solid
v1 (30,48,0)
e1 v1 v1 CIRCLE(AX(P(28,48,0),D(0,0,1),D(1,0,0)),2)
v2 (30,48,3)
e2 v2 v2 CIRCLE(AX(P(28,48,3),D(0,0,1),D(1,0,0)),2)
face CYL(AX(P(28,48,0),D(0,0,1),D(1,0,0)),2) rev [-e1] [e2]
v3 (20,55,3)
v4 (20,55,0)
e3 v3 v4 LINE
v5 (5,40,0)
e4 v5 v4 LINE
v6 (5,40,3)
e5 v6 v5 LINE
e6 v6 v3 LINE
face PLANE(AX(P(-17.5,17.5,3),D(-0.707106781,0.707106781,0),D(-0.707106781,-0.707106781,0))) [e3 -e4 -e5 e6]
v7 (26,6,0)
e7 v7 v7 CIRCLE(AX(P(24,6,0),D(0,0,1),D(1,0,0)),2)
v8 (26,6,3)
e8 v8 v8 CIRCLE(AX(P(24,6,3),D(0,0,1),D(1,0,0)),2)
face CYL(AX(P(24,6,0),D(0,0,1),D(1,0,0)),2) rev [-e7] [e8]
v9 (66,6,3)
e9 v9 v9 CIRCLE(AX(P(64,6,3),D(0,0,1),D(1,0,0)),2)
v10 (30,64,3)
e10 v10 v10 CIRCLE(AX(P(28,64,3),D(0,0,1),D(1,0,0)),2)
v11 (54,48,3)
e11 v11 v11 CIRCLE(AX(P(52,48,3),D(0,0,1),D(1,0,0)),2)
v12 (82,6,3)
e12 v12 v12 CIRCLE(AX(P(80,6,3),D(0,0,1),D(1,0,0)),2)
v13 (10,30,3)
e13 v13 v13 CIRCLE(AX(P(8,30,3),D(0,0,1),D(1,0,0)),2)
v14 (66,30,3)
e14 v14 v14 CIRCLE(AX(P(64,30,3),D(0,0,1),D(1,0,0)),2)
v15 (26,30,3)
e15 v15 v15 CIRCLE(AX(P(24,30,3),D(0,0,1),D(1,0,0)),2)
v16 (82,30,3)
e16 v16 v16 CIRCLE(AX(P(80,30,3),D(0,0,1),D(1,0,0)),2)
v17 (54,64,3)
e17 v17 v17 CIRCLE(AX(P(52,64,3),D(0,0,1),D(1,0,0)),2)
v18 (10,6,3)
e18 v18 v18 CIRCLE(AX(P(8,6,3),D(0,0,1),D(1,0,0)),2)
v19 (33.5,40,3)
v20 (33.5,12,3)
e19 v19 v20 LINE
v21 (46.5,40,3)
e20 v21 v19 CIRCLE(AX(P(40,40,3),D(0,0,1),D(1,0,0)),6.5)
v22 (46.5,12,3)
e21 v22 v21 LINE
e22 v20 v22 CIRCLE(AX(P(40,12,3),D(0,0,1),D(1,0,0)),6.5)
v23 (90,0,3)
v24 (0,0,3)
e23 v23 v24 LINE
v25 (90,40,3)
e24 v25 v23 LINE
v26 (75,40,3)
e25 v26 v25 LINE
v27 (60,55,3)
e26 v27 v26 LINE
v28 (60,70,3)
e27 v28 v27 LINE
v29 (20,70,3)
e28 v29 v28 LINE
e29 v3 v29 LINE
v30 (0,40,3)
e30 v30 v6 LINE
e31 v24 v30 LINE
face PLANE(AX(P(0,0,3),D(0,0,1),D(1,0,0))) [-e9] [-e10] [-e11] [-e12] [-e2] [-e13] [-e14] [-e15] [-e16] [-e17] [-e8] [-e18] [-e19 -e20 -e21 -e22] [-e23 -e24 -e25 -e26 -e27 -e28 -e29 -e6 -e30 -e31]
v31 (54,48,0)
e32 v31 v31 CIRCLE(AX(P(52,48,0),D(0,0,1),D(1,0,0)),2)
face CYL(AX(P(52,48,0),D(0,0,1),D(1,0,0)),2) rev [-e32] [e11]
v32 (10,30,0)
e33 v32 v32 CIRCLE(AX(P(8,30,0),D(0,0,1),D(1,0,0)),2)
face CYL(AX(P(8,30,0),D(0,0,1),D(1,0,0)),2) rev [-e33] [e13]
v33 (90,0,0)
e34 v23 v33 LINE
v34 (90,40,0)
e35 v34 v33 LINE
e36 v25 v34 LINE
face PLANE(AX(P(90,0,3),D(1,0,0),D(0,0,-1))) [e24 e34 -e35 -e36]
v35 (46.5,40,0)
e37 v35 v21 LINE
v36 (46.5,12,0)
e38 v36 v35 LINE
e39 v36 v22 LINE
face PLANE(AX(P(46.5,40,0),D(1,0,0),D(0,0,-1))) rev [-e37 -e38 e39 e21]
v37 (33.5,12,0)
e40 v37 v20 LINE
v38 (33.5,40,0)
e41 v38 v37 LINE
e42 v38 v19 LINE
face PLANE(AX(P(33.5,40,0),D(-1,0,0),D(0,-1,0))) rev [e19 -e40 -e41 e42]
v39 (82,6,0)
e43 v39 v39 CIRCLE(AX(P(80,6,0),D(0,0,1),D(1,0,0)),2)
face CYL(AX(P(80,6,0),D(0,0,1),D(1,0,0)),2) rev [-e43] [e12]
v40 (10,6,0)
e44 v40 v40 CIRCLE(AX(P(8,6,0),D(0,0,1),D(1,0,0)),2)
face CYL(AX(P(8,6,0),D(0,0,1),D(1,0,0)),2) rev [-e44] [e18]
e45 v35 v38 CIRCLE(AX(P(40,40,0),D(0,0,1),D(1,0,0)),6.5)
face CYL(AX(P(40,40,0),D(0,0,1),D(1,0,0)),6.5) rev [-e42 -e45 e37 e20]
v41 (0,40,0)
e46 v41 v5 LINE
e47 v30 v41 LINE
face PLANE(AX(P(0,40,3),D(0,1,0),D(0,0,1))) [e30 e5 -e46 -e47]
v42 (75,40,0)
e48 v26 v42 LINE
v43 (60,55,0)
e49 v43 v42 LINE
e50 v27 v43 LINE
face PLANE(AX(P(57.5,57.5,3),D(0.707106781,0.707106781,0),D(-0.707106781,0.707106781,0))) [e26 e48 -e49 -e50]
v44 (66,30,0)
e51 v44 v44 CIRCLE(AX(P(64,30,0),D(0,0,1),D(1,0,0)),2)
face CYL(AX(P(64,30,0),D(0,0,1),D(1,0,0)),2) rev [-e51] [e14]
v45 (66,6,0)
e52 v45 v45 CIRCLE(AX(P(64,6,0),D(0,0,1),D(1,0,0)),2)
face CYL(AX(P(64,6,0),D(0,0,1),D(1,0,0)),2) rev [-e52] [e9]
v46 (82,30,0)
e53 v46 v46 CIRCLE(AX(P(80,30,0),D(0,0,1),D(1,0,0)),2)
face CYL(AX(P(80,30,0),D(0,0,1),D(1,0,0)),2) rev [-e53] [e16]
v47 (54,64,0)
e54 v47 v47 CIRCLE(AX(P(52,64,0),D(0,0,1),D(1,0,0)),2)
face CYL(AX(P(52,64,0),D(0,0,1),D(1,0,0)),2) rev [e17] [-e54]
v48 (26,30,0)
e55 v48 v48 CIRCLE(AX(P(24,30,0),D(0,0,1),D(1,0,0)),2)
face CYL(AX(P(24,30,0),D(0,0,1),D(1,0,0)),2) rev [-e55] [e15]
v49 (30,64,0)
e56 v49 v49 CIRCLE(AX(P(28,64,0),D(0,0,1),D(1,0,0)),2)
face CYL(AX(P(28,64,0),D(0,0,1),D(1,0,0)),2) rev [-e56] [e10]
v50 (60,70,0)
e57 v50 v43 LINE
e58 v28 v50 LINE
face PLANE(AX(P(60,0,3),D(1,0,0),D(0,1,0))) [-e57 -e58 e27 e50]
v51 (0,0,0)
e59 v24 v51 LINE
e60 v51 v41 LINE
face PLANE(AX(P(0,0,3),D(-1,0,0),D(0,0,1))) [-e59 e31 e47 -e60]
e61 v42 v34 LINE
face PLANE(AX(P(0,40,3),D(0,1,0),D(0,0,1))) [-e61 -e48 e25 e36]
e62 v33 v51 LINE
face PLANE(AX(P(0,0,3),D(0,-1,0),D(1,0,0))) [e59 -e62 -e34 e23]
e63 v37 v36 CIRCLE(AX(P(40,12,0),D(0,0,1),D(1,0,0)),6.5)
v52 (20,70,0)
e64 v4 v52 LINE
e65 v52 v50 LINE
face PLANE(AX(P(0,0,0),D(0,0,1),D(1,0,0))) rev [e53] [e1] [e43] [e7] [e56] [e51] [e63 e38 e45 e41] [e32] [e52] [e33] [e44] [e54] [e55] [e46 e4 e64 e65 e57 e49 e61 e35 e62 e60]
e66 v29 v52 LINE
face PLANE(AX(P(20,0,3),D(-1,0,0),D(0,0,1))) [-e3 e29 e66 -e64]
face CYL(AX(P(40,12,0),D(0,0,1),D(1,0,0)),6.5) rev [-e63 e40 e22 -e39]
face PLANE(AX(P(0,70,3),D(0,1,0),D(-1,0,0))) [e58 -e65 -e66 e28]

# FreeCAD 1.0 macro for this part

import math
import FreeCAD as App
import Part
import Sketcher
from FreeCAD import Vector

doc = App.newDocument("Part")
params = doc.addObject("Spreadsheet::Sheet", "Params")
for row, (alias, value) in enumerate([
    ("sketch1_width", "90 mm"),
    ("sketch1_width2", "15 mm"),
    ("sketch1_width3", "40 mm"),
    ("sketch1_width4", "5 mm"),
    ("pad1_length", "3 mm"),
    ("sketch2_diameter", "4 mm"),
    ("sketch2_radius", "6.5 mm"),
    ("sketch2_height", "28 mm"),
    ("pocket1_length", "3 mm"),
], start=1):
    params.set(f"A{row}", alias)
    params.set(f"B{row}", "=" + value)
    params.setAlias(f"B{row}", alias)

body = doc.addObject("PartDesign::Body", "Body")

sketch1 = doc.addObject("Sketcher::SketchObject", "Sketch")
body.addObject(sketch1)
sketch1.AttachmentSupport = (doc.XY_Plane, [""])
sketch1.MapMode = "FlatFace"
sketch1.addGeometry(Part.LineSegment(Vector(0, 40, 0), Vector(0, 0, 0)), False)
sketch1.addGeometry(Part.LineSegment(Vector(0, 0, 0), Vector(90, 0, 0)), False)
sketch1.addGeometry(Part.LineSegment(Vector(90, 0, 0), Vector(90, 40, 0)), False)
sketch1.addGeometry(Part.LineSegment(Vector(90, 40, 0), Vector(75, 40, 0)), False)
sketch1.addGeometry(Part.LineSegment(Vector(75, 40, 0), Vector(60, 55, 0)), False)
sketch1.addGeometry(Part.LineSegment(Vector(60, 55, 0), Vector(60, 70, 0)), False)
sketch1.addGeometry(Part.LineSegment(Vector(60, 70, 0), Vector(20, 70, 0)), False)
sketch1.addGeometry(Part.LineSegment(Vector(20, 70, 0), Vector(20, 55, 0)), False)
sketch1.addGeometry(Part.LineSegment(Vector(20, 55, 0), Vector(5, 40, 0)), False)
sketch1.addGeometry(Part.LineSegment(Vector(5, 40, 0), Vector(0, 40, 0)), False)
sketch1.addConstraint(Sketcher.Constraint("Coincident", 0, 2, 1, 1))
sketch1.addConstraint(Sketcher.Constraint("Coincident", 1, 2, 2, 1))
sketch1.addConstraint(Sketcher.Constraint("Coincident", 2, 2, 3, 1))
sketch1.addConstraint(Sketcher.Constraint("Coincident", 3, 2, 4, 1))
sketch1.addConstraint(Sketcher.Constraint("Coincident", 4, 2, 5, 1))
sketch1.addConstraint(Sketcher.Constraint("Coincident", 5, 2, 6, 1))
sketch1.addConstraint(Sketcher.Constraint("Coincident", 6, 2, 7, 1))
sketch1.addConstraint(Sketcher.Constraint("Coincident", 7, 2, 8, 1))
sketch1.addConstraint(Sketcher.Constraint("Coincident", 8, 2, 9, 1))
sketch1.addConstraint(Sketcher.Constraint("Coincident", 9, 2, 0, 1))
sketch1.addConstraint(Sketcher.Constraint("Vertical", 0))
sketch1.addConstraint(Sketcher.Constraint("Horizontal", 1))
sketch1.addConstraint(Sketcher.Constraint("Vertical", 2))
sketch1.addConstraint(Sketcher.Constraint("Horizontal", 3))
sketch1.addConstraint(Sketcher.Constraint("Vertical", 5))
sketch1.addConstraint(Sketcher.Constraint("Horizontal", 6))
sketch1.addConstraint(Sketcher.Constraint("Vertical", 7))
sketch1.addConstraint(Sketcher.Constraint("Horizontal", 9))
sketch1.addConstraint(Sketcher.Constraint("Coincident", 0, 2, -1, 1))
sketch1.addConstraint(Sketcher.Constraint("Perpendicular", 4, 8))
sketch1.addConstraint(Sketcher.Constraint("Horizontal", 4, 2, 7, 2))
sketch1.addConstraint(Sketcher.Constraint("Horizontal", 3, 2, 8, 2))
sketch1.addConstraint(Sketcher.Constraint("Equal", 6, 0))
sketch1.addConstraint(Sketcher.Constraint("Equal", 3, 5))
sketch1.addConstraint(Sketcher.Constraint("Equal", 4, 8))
sketch1.addConstraint(Sketcher.Constraint("DistanceX", 1, 1, 1, 2, 90.0))
sketch1.addConstraint(Sketcher.Constraint("DistanceX", 3, 2, 3, 1, 15.0))
sketch1.addConstraint(Sketcher.Constraint("DistanceX", 6, 2, 6, 1, 40.0))
sketch1.addConstraint(Sketcher.Constraint("DistanceX", 9, 2, 9, 1, 5.0))
sketch1.setExpression("Constraints[25]", "Params.sketch1_width")
sketch1.setExpression("Constraints[26]", "Params.sketch1_width2")
sketch1.setExpression("Constraints[27]", "Params.sketch1_width3")
sketch1.setExpression("Constraints[28]", "Params.sketch1_width4")
pad1 = doc.addObject("PartDesign::Pad", "Pad")
body.addObject(pad1)
pad1.Profile = sketch1
pad1.setExpression("Length", "Params.pad1_length")

sketch2 = doc.addObject("Sketcher::SketchObject", "Sketch001")
body.addObject(sketch2)
sketch2.AttachmentSupport = (doc.XY_Plane, [""])
sketch2.MapMode = "FlatFace"
sketch2.AttachmentOffset = App.Placement(Vector(0, 0, 3), App.Rotation())
sketch2.addGeometry(Part.Circle(Vector(28, 64, 0), Vector(0, 0, 1), 2), False)
sketch2.addGeometry(Part.Circle(Vector(28, 48, 0), Vector(0, 0, 1), 2), False)
sketch2.addGeometry(Part.Circle(Vector(52, 64, 0), Vector(0, 0, 1), 2), False)
sketch2.addGeometry(Part.Circle(Vector(52, 48, 0), Vector(0, 0, 1), 2), False)
sketch2.addGeometry(Part.Circle(Vector(8, 30, 0), Vector(0, 0, 1), 2), False)
sketch2.addGeometry(Part.Circle(Vector(24, 30, 0), Vector(0, 0, 1), 2), False)
sketch2.addGeometry(Part.Circle(Vector(80, 30, 0), Vector(0, 0, 1), 2), False)
sketch2.addGeometry(Part.Circle(Vector(64, 30, 0), Vector(0, 0, 1), 2), False)
sketch2.addGeometry(Part.Circle(Vector(80, 6, 0), Vector(0, 0, 1), 2), False)
sketch2.addGeometry(Part.Circle(Vector(64, 6, 0), Vector(0, 0, 1), 2), False)
sketch2.addGeometry(Part.Circle(Vector(24, 6, 0), Vector(0, 0, 1), 2), False)
sketch2.addGeometry(Part.Circle(Vector(8, 6, 0), Vector(0, 0, 1), 2), False)
sketch2.addGeometry(Part.LineSegment(Vector(46.5, 12, 0), Vector(46.5, 40, 0)), False)
sketch2.addGeometry(Part.ArcOfCircle(Part.Circle(Vector(40, 40, 0), Vector(0, 0, 1), 6.5), math.radians(0), math.radians(180)), False)
sketch2.addGeometry(Part.LineSegment(Vector(33.5, 40, 0), Vector(33.5, 12, 0)), False)
sketch2.addGeometry(Part.ArcOfCircle(Part.Circle(Vector(40, 12, 0), Vector(0, 0, 1), 6.5), math.radians(180), math.radians(360)), False)
sketch2.addConstraint(Sketcher.Constraint("Tangent", 12, 2, 13, 1))
sketch2.addConstraint(Sketcher.Constraint("Tangent", 13, 2, 14, 1))
sketch2.addConstraint(Sketcher.Constraint("Tangent", 14, 2, 15, 1))
sketch2.addConstraint(Sketcher.Constraint("Tangent", 15, 2, 12, 1))
sketch2.addConstraint(Sketcher.Constraint("Vertical", 12))
sketch2.addConstraint(Sketcher.Constraint("Vertical", 14))
sketch2.addConstraint(Sketcher.Constraint("Equal", 0, 1))
sketch2.addConstraint(Sketcher.Constraint("Equal", 1, 2))
sketch2.addConstraint(Sketcher.Constraint("Equal", 2, 3))
sketch2.addConstraint(Sketcher.Constraint("Equal", 3, 4))
sketch2.addConstraint(Sketcher.Constraint("Equal", 4, 5))
sketch2.addConstraint(Sketcher.Constraint("Equal", 5, 6))
sketch2.addConstraint(Sketcher.Constraint("Equal", 6, 7))
sketch2.addConstraint(Sketcher.Constraint("Equal", 7, 8))
sketch2.addConstraint(Sketcher.Constraint("Equal", 8, 9))
sketch2.addConstraint(Sketcher.Constraint("Equal", 9, 10))
sketch2.addConstraint(Sketcher.Constraint("Equal", 10, 11))
sketch2.addConstraint(Sketcher.Constraint("Horizontal", 0, 3, 2, 3))
sketch2.addConstraint(Sketcher.Constraint("Horizontal", 1, 3, 3, 3))
sketch2.addConstraint(Sketcher.Constraint("Horizontal", 4, 3, 5, 3))
sketch2.addConstraint(Sketcher.Constraint("Horizontal", 5, 3, 6, 3))
sketch2.addConstraint(Sketcher.Constraint("Horizontal", 6, 3, 7, 3))
sketch2.addConstraint(Sketcher.Constraint("Horizontal", 8, 3, 9, 3))
sketch2.addConstraint(Sketcher.Constraint("Horizontal", 9, 3, 10, 3))
sketch2.addConstraint(Sketcher.Constraint("Horizontal", 10, 3, 11, 3))
sketch2.addConstraint(Sketcher.Constraint("Vertical", 0, 3, 1, 3))
sketch2.addConstraint(Sketcher.Constraint("Vertical", 2, 3, 3, 3))
sketch2.addConstraint(Sketcher.Constraint("Vertical", 6, 3, 8, 3))
sketch2.addConstraint(Sketcher.Constraint("Vertical", 7, 3, 9, 3))
sketch2.addConstraint(Sketcher.Constraint("Vertical", 5, 3, 10, 3))
sketch2.addConstraint(Sketcher.Constraint("Vertical", 4, 3, 11, 3))
sketch2.addConstraint(Sketcher.Constraint("Diameter", 0, 4.0))
sketch2.addConstraint(Sketcher.Constraint("Radius", 13, 6.5))
sketch2.addConstraint(Sketcher.Constraint("DistanceY", 12, 1, 12, 2, 28.0))
sketch2.addConstraint(Sketcher.Constraint("DistanceX", -1, 1, 0, 3, 28.0))
sketch2.addConstraint(Sketcher.Constraint("DistanceY", -1, 1, 0, 3, 64.0))
sketch2.addConstraint(Sketcher.Constraint("DistanceY", -1, 1, 1, 3, 48.0))
sketch2.addConstraint(Sketcher.Constraint("DistanceX", -1, 1, 2, 3, 52.0))
sketch2.addConstraint(Sketcher.Constraint("DistanceX", -1, 1, 4, 3, 8.0))
sketch2.addConstraint(Sketcher.Constraint("DistanceY", -1, 1, 4, 3, 30.0))
sketch2.addConstraint(Sketcher.Constraint("DistanceX", -1, 1, 5, 3, 24.0))
sketch2.addConstraint(Sketcher.Constraint("DistanceX", -1, 1, 6, 3, 80.0))
sketch2.addConstraint(Sketcher.Constraint("DistanceX", -1, 1, 7, 3, 64.0))
sketch2.addConstraint(Sketcher.Constraint("DistanceY", -1, 1, 8, 3, 6.0))
sketch2.addConstraint(Sketcher.Constraint("DistanceX", -1, 1, 13, 3, 40.0))
sketch2.addConstraint(Sketcher.Constraint("DistanceY", -1, 1, 13, 3, 40.0))
sketch2.setExpression("Constraints[31]", "Params.sketch2_diameter")
sketch2.setExpression("Constraints[32]", "Params.sketch2_radius")
sketch2.setExpression("Constraints[33]", "Params.sketch2_height")
pocket1 = doc.addObject("PartDesign::Pocket", "Pocket")
body.addObject(pocket1)
pocket1.Profile = sketch2
pocket1.setExpression("Length", "Params.pocket1_length")

doc.recompute()
